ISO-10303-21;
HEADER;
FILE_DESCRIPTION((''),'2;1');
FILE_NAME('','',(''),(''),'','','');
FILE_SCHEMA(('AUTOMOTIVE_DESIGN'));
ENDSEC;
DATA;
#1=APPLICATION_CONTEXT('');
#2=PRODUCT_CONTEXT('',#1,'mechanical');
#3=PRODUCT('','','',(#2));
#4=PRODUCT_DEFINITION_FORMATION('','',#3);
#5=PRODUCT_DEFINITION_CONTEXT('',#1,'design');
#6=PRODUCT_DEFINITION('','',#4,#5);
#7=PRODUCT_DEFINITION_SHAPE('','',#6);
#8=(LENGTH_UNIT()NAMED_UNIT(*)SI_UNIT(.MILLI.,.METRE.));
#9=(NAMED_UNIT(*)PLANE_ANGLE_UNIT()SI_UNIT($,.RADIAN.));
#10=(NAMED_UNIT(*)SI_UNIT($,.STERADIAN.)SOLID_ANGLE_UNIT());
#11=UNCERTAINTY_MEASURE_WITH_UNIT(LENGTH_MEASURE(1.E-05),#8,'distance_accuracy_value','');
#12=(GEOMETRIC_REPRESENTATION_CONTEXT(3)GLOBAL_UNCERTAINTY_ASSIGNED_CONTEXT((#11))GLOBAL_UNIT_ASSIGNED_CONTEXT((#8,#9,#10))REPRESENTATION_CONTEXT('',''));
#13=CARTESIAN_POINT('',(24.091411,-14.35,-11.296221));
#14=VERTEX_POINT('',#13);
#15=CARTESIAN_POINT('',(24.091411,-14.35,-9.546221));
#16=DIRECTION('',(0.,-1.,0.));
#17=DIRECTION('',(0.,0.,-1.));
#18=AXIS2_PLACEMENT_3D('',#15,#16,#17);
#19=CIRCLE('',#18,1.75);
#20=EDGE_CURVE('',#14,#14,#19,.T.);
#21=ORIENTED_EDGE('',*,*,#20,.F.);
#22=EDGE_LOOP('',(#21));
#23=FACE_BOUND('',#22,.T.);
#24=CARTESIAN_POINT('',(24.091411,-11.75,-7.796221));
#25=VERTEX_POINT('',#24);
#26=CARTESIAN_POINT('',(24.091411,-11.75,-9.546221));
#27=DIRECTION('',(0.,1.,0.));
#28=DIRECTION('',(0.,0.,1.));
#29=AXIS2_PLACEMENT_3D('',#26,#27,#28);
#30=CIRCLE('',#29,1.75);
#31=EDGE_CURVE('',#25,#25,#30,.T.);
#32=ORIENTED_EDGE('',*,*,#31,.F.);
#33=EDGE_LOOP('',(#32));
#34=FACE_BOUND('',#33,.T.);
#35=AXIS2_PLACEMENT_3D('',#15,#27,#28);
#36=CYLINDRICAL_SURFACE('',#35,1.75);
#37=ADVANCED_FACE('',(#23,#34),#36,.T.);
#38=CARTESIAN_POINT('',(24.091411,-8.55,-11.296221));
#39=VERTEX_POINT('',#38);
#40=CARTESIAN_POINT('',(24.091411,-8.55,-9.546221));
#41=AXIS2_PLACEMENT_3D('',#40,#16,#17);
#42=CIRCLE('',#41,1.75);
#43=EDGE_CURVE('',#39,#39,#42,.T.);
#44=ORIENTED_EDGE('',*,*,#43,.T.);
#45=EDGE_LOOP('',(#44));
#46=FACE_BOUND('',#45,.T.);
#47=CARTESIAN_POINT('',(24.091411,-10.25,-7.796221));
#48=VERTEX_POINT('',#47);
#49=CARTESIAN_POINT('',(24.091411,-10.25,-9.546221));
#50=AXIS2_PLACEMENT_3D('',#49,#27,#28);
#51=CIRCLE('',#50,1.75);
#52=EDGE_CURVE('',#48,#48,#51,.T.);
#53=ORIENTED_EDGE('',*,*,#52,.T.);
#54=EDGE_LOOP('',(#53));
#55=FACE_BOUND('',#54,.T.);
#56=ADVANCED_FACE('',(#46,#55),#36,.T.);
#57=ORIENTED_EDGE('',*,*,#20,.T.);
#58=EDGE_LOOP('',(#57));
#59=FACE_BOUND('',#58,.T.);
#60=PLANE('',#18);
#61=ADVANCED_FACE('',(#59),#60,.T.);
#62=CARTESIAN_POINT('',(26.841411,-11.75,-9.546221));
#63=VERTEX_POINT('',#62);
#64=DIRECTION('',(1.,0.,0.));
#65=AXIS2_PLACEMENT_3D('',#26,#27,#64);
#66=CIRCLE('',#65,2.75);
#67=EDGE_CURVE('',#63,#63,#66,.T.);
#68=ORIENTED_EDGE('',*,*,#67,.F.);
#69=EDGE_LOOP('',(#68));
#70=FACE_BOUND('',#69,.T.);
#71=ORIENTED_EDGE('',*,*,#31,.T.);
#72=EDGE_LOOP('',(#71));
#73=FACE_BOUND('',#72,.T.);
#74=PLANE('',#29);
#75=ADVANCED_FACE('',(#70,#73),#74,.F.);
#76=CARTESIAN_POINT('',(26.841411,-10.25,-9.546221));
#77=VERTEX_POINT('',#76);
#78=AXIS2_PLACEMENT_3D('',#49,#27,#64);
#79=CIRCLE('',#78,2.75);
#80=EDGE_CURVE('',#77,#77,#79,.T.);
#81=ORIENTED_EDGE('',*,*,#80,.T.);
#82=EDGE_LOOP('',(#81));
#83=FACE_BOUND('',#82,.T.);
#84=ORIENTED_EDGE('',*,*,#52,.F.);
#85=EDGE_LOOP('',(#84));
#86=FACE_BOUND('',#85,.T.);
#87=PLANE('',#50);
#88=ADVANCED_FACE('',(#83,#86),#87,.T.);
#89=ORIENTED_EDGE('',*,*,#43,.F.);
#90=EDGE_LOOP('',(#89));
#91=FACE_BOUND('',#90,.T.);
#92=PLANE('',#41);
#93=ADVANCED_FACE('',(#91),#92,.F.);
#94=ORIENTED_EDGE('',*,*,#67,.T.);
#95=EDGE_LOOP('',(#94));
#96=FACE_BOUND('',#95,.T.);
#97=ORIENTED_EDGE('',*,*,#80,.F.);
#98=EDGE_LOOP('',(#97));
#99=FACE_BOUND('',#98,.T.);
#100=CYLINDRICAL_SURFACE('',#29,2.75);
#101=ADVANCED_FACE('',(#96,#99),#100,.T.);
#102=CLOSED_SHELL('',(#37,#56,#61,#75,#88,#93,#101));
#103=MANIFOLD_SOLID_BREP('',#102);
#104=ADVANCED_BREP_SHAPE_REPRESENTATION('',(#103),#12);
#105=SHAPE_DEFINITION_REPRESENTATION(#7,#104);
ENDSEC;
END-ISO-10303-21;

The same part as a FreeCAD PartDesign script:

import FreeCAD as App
import Part
import Sketcher
from FreeCAD import Vector
Q = App.Units.Quantity

doc = App.newDocument("Part")
body = doc.addObject("PartDesign::Body", "Body")

# Sketch on XZ plane
sketch1 = body.newObject("Sketcher::SketchObject", "Sketch")
sketch1.AttachmentSupport = (doc.getObject("XZ_Plane"), [""])
sketch1.MapMode = "FlatFace"
sketch1.AttachmentOffset = App.Placement(Vector(0, 0, 8.55), App.Rotation())
sketch1.addGeometry(Part.Circle(Vector(24.1, -9.5, 0), Vector(0, 0, 1), 1.8), False)
sketch1.addConstraint(Sketcher.Constraint("Diameter", 0, Q("3.5 mm")))
sketch1.addConstraint(Sketcher.Constraint("DistanceX", -1, 1, 0, 3, Q("24.091411 mm")))
sketch1.addConstraint(Sketcher.Constraint("DistanceY", 0, 3, -1, 1, Q("9.546221 mm")))
pad1 = body.newObject("PartDesign::Pad", "Pad")
pad1.Profile = sketch1
pad1.Length = 5.8

# Sketch on XZ plane
sketch2 = body.newObject("Sketcher::SketchObject", "Sketch001")
sketch2.AttachmentSupport = (doc.getObject("XZ_Plane"), [""])
sketch2.MapMode = "FlatFace"
sketch2.AttachmentOffset = App.Placement(Vector(0, 0, 10.25), App.Rotation())
sketch2.addGeometry(Part.Circle(Vector(24.1, -9.5, 0), Vector(0, 0, 1), 2.8), False)
sketch2.addGeometry(Part.Circle(Vector(24.1, -9.5, 0), Vector(0, 0, 1), 1.8), False)
sketch2.addConstraint(Sketcher.Constraint("Coincident", 1, 3, 0, 3))
sketch2.addConstraint(Sketcher.Constraint("Diameter", 0, Q("5.5 mm")))
sketch2.addConstraint(Sketcher.Constraint("Diameter", 1, Q("3.5 mm")))
sketch2.addConstraint(Sketcher.Constraint("DistanceX", -1, 1, 0, 3, Q("24.091411 mm")))
sketch2.addConstraint(Sketcher.Constraint("DistanceY", 0, 3, -1, 1, Q("9.546221 mm")))
pad2 = body.newObject("PartDesign::Pad", "Pad001")
pad2.Profile = sketch2
pad2.Length = 1.5

doc.recompute()
